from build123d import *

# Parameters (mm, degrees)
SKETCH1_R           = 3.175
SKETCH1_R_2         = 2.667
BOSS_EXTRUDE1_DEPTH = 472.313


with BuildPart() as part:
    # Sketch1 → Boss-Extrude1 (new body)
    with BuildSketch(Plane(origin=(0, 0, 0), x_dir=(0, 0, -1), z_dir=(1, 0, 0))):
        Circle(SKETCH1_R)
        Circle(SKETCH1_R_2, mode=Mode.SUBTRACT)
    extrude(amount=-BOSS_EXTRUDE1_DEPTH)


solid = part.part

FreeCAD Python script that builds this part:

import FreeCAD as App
import Part
import Sketcher
from FreeCAD import Vector
Q = App.Units.Quantity

doc = App.newDocument("Part")
body = doc.addObject("PartDesign::Body", "Body")

sketch1 = body.newObject("Sketcher::SketchObject", "Sketch")
sketch1.AttachmentSupport = (doc.getObject("YZ_Plane"), [""])
sketch1.MapMode = "FlatFace"
sketch1.addGeometry(Part.Circle(Vector(0, 0, 0), Vector(0, 0, 1), 3.2), False)
sketch1.addGeometry(Part.Circle(Vector(0, 0, 0), Vector(0, 0, 1), 2.7), False)
sketch1.addConstraint(Sketcher.Constraint("Coincident", 0, 3, -1, 1))
sketch1.addConstraint(Sketcher.Constraint("Coincident", 1, 3, -1, 1))
sketch1.addConstraint(Sketcher.Constraint("Diameter", 0, Q("0.25 in")))
sketch1.addConstraint(Sketcher.Constraint("Diameter", 1, Q("0.21 in")))
pad1 = body.newObject("PartDesign::Pad", "Pad")
pad1.Profile = sketch1
pad1.Length = Q("18.595 in")
pad1.Reversed = True

doc.recompute()
